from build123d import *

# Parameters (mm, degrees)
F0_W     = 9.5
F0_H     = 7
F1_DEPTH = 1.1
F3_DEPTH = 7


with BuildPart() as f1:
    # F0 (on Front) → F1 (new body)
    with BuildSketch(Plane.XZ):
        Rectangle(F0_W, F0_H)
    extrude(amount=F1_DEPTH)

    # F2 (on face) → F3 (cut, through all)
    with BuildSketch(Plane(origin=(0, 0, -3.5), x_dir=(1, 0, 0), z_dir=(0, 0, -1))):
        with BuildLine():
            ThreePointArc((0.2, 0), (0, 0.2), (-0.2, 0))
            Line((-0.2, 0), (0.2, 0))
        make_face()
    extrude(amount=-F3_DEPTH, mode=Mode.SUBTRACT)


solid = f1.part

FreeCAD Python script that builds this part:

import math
import FreeCAD as App
import Part
import Sketcher
from FreeCAD import Vector


def add_polygon(sketch, points):
    """Adds a closed chain of lines whose ends are joined by coincident constraints."""
    first, n = sketch.GeometryCount, len(points)
    for a, b in zip(points, points[1:] + points[:1]):
        sketch.addGeometry(Part.LineSegment(App.Vector(*a, 0), App.Vector(*b, 0)), False)
    for i in range(n):
        sketch.addConstraint(Sketcher.Constraint("Coincident", first + i, 2, first + (i + 1) % n, 1))

doc = App.newDocument("Part")
params = doc.addObject("Spreadsheet::Sheet", "Params")
for row, (alias, value) in enumerate([
    ("sketch1_height", "7 mm"),
    ("sketch1_width", "9.5 mm"),
    ("pad1_length", "1.1 mm"),
    ("sketch2_radius", "0.2 mm"),
], start=1):
    params.set(f"A{row}", alias)
    params.set(f"B{row}", "=" + value)
    params.setAlias(f"B{row}", alias)

body = doc.addObject("PartDesign::Body", "Body")

sketch1 = body.newObject("Sketcher::SketchObject", "Sketch")
sketch1.AttachmentSupport = (doc.getObject("XZ_Plane"), [""])
sketch1.MapMode = "FlatFace"
add_polygon(sketch1, [(-5, 4), (-5, -4), (5, -4), (5, 4)])
sketch1.addConstraint([
    Sketcher.Constraint("Vertical", 0),
    Sketcher.Constraint("Horizontal", 1),
    Sketcher.Constraint("Vertical", 2),
    Sketcher.Constraint("Horizontal", 3),
    Sketcher.Constraint("Symmetric", 0, 2, 2, 2, -1, 1),
    Sketcher.Constraint("DistanceY", 0, 2, 0, 1, 7.0),
    Sketcher.Constraint("DistanceX", 1, 1, 1, 2, 9.5),
])
sketch1.setExpression("Constraints[9]", "Params.sketch1_height")
sketch1.setExpression("Constraints[10]", "Params.sketch1_width")
pad1 = body.newObject("PartDesign::Pad", "Pad")
pad1.Profile = sketch1
pad1.setExpression("Length", "Params.pad1_length")

sketch2 = body.newObject("Sketcher::SketchObject", "Sketch001")
sketch2.AttachmentSupport = (doc.getObject("XY_Plane"), [""])
sketch2.MapMode = "FlatFace"
sketch2.AttachmentOffset = App.Placement(Vector(0, 0, -3.5), App.Rotation())
sketch2.addGeometry([
    Part.ArcOfCircle(Part.Circle(Vector(0, 0, 0), Vector(0, 0, 1), 0.2), math.radians(180), math.radians(360)),
    Part.LineSegment(Vector(-0.2, 0, 0), Vector(0.2, 0, 0)),
], False)
sketch2.addConstraint([
    Sketcher.Constraint("Coincident", 0, 1, 1, 1),
    Sketcher.Constraint("Coincident", 1, 2, 0, 2),
    Sketcher.Constraint("Horizontal", 1),
    Sketcher.Constraint("Coincident", 0, 3, -1, 1),
    Sketcher.Constraint("PointOnObject", 0, 1, -1),
    Sketcher.Constraint("Radius", 0, 0.2),
])
sketch2.setExpression("Constraints[5]", "Params.sketch2_radius")
pocket1 = body.newObject("PartDesign::Pocket", "Pocket")
pocket1.Profile = sketch2
pocket1.Type = "ThroughAll"
pocket1.Reversed = True

doc.recompute()
